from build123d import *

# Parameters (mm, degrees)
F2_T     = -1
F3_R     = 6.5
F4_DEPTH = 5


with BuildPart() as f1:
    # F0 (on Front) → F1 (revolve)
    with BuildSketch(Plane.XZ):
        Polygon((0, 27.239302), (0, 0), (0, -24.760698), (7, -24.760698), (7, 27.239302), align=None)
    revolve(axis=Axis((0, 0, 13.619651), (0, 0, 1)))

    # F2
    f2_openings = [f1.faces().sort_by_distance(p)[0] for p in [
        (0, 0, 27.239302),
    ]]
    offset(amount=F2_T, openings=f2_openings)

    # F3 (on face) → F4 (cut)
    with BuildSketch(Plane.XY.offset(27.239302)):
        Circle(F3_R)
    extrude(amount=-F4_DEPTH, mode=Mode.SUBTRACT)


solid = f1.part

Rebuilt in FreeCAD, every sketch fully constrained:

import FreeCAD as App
import Part
import Sketcher

V = App.Vector


def faces_at(feature, points):
    """Names of the faces that lie closest to the given points."""
    faces = feature.Shape.Faces
    near = lambda p: min(range(len(faces)), key=lambda i: faces[i].distToShape(Part.Vertex(*p))[0])
    return sorted({f"Face{near(p) + 1}" for p in points})


def add_polygon(sketch, points):
    """Adds a closed chain of lines whose ends are joined by coincident constraints."""
    first, n = sketch.GeometryCount, len(points)
    for a, b in zip(points, points[1:] + points[:1]):
        sketch.addGeometry(Part.LineSegment(App.Vector(*a, 0), App.Vector(*b, 0)), False)
    for i in range(n):
        sketch.addConstraint(Sketcher.Constraint("Coincident", first + i, 2, first + (i + 1) % n, 1))

doc = App.newDocument("Part")
body = doc.addObject("PartDesign::Body", "Body")

sketch1 = doc.addObject("Sketcher::SketchObject", "Sketch")
body.addObject(sketch1)
sketch1.AttachmentSupport = (doc.XZ_Plane, [""])
sketch1.MapMode = "FlatFace"
add_polygon(sketch1, [(0, 27.239302), (0, -24.760698), (7, -24.760698), (7, 27.239302)])
sketch1.addConstraint([
    Sketcher.Constraint("Vertical", 0),
    Sketcher.Constraint("Horizontal", 1),
    Sketcher.Constraint("Vertical", 2),
    Sketcher.Constraint("Horizontal", 3),
    Sketcher.Constraint("PointOnObject", 0, 2, -2),
    Sketcher.Constraint("DistanceX", 1, 1, 1, 2, 7.0),
    Sketcher.Constraint("DistanceY", 0, 2, 0, 1, 52.0),
    Sketcher.Constraint("DistanceY", 0, 2, -1, 1, 24.760698),
])
revolution = doc.addObject("PartDesign::Revolution", "Revolution")
body.addObject(revolution)
revolution.Profile = sketch1
revolution.ReferenceAxis = (sketch1, ["V_Axis"])
revolution.Angle = 360
doc.recompute()

thickness = doc.addObject("PartDesign::Thickness", "Thickness")
body.addObject(thickness)
thickness.Base = (revolution, faces_at(revolution, [(0, 0, 27.239)]))
thickness.Value = 1
thickness.Reversed = True
thickness.Join = "Arc"

sketch2 = doc.addObject("Sketcher::SketchObject", "Sketch001")
body.addObject(sketch2)
sketch2.AttachmentSupport = (doc.XY_Plane, [""])
sketch2.MapMode = "FlatFace"
sketch2.AttachmentOffset = App.Placement(V(0, 0, 27.239302), App.Rotation())
sketch2.addGeometry(Part.Circle(V(0, 0, 0), V(0, 0, 1), 6.5), False)
sketch2.addConstraint([
    Sketcher.Constraint("Coincident", 0, 3, -1, 1),
    Sketcher.Constraint("Diameter", 0, 13.0),
])
pocket1 = doc.addObject("PartDesign::Pocket", "Pocket")
body.addObject(pocket1)
pocket1.Profile = sketch2
pocket1.Length = 5

doc.recompute()
